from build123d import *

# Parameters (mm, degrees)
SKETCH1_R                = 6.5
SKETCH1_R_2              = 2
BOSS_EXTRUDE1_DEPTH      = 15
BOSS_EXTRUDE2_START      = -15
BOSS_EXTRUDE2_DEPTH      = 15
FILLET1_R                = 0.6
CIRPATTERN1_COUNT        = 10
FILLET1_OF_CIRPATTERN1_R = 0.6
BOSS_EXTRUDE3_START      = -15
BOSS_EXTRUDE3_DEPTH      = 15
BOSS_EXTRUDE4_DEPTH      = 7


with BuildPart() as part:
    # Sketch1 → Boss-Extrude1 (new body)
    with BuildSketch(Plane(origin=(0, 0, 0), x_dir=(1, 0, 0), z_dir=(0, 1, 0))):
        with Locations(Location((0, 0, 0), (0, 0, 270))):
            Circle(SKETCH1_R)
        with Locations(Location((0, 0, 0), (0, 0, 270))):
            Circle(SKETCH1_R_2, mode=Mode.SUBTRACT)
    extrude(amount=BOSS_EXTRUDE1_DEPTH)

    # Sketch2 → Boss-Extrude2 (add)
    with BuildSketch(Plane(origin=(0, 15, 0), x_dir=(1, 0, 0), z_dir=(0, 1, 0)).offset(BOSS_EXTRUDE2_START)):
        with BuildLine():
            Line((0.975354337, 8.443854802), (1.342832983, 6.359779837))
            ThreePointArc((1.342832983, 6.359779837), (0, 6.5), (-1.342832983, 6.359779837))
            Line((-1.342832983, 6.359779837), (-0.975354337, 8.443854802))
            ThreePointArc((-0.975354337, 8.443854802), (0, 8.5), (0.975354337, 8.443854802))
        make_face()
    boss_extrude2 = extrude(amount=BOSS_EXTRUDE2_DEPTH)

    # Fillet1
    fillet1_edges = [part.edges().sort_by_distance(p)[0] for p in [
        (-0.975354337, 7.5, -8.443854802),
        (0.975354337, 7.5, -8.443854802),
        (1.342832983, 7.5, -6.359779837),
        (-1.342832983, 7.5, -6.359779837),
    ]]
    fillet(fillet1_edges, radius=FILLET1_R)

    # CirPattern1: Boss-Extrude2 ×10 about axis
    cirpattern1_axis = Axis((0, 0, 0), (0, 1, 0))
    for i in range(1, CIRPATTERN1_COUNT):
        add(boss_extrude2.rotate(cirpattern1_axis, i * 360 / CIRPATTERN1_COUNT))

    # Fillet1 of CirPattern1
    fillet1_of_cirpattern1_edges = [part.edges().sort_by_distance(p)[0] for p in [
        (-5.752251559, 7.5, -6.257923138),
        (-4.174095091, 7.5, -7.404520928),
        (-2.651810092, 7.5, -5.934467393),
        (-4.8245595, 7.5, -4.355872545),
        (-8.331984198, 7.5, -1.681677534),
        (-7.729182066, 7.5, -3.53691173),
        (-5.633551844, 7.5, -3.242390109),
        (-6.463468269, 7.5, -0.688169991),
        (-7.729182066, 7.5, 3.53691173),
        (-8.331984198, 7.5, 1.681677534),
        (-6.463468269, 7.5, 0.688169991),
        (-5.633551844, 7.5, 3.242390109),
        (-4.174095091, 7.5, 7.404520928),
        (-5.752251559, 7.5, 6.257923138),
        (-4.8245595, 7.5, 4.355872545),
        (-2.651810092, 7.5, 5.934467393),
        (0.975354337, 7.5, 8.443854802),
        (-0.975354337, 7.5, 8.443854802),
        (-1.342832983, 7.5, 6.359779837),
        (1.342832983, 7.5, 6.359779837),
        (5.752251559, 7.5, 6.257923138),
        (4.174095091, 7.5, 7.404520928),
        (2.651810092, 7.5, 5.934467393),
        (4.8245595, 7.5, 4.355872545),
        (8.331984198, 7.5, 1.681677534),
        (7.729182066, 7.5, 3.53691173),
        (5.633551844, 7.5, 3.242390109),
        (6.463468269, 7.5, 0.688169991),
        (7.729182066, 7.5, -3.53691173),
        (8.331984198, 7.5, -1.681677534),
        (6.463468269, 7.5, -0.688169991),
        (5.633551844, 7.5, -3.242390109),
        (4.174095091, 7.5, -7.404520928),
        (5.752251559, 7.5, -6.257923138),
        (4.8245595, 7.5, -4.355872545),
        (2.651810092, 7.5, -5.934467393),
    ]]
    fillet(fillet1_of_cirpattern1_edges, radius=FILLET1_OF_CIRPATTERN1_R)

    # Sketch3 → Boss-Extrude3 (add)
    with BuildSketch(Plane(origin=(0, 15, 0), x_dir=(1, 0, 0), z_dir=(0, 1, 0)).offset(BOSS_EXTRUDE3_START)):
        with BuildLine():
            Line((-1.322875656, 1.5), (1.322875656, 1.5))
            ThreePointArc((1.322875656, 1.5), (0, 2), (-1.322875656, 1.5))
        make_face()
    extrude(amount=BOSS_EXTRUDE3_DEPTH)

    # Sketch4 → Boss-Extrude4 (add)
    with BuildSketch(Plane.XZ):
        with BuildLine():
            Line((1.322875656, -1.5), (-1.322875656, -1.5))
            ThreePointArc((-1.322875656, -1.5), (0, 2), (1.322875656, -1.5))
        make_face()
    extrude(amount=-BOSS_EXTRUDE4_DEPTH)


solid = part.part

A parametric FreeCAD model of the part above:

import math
import FreeCAD as App
import Part
import Sketcher
Q = App.Units.Quantity


def edges_at(feature, points):
    """Names of the edges that pass closest to the given points."""
    edges = feature.Shape.Edges
    near = lambda p: min(range(len(edges)), key=lambda i: edges[i].distToShape(Part.Vertex(*p))[0])
    return sorted({f"Edge{near(p) + 1}" for p in points})

doc = App.newDocument("Part")
params = doc.addObject("Spreadsheet::Sheet", "Params")
for row, (alias, value) in enumerate([
    ("sketch1_diameter", "13 mm"),
    ("sketch1_diameter2", "4 mm"),
    ("pad1_length", "15 mm"),
    ("sketch2_radius", "8.5 mm"),
    ("sketch2_radius2", "6.5 mm"),
    ("pad2_length", "15 mm"),
    ("fillet_radius", "0.6 mm"),
    ("fillet2_radius", "0.6 mm"),
    ("sketch3_radius", "2 mm"),
    ("pad3_length", "15 mm"),
    ("sketch4_radius", "2 mm"),
    ("pad4_length", "7 mm"),
], start=1):
    params.set(f"A{row}", alias)
    params.set(f"B{row}", "=" + value)
    params.setAlias(f"B{row}", alias)

body = doc.addObject("PartDesign::Body", "Body")

sketch1 = body.newObject("Sketcher::SketchObject", "Sketch")
sketch1.AttachmentSupport = (doc.getObject("XZ_Plane"), [""])
sketch1.MapMode = "FlatFace"
sketch1.addGeometry([
    Part.Circle(App.Vector(0, 0, 0), App.Vector(0, 0, 1), 6.5),
    Part.Circle(App.Vector(0, 0, 0), App.Vector(0, 0, 1), 2),
], False)
sketch1.addConstraint([
    Sketcher.Constraint("Coincident", 0, 3, -1, 1),
    Sketcher.Constraint("Coincident", 1, 3, -1, 1),
    Sketcher.Constraint("Diameter", 0, Q("13 mm")),
    Sketcher.Constraint("Diameter", 1, Q("4 mm")),
])
sketch1.setExpression("Constraints[2]", "Params.sketch1_diameter")
sketch1.setExpression("Constraints[3]", "Params.sketch1_diameter2")
pad1 = body.newObject("PartDesign::Pad", "Pad")
pad1.Profile = sketch1
pad1.setExpression("Length", "Params.pad1_length")
pad1.Reversed = True

sketch2 = body.newObject("Sketcher::SketchObject", "Sketch001")
sketch2.AttachmentSupport = (doc.getObject("XZ_Plane"), [""])
sketch2.MapMode = "FlatFace"
sketch2.addGeometry([
    Part.LineSegment(App.Vector(1.3, -6.4, 0), App.Vector(1, -8.4, 0)),
    Part.ArcOfCircle(Part.Circle(App.Vector(0, 0, 0), App.Vector(0, 0, 1), 8.5), math.radians(-96.59), math.radians(-83.41)),
    Part.LineSegment(App.Vector(-1, -8.4, 0), App.Vector(-1.3, -6.4, 0)),
    Part.ArcOfCircle(Part.Circle(App.Vector(0, 0, 0), App.Vector(0, 0, 1), 6.5), math.radians(-102), math.radians(-78)),
], False)
sketch2.addConstraint([
    Sketcher.Constraint("Coincident", 0, 2, 1, 2),
    Sketcher.Constraint("Coincident", 1, 1, 2, 1),
    Sketcher.Constraint("Coincident", 2, 2, 3, 1),
    Sketcher.Constraint("Coincident", 3, 2, 0, 1),
    Sketcher.Constraint("Coincident", 1, 3, -1, 1),
    Sketcher.Constraint("Coincident", 3, 3, -1, 1),
    Sketcher.Constraint("Horizontal", 0, 2, 1, 1),
    Sketcher.Constraint("Horizontal", 2, 2, 3, 2),
    Sketcher.Constraint("Radius", 1, Q("8.5 mm")),
    Sketcher.Constraint("Radius", 3, Q("6.5 mm")),
    Sketcher.Constraint("Angle", 0, Q("-100 deg")),
    Sketcher.Constraint("DistanceY", 2, 2, -1, 1, Q("6.35978 mm")),
])
sketch2.setExpression("Constraints[8]", "Params.sketch2_radius")
sketch2.setExpression("Constraints[9]", "Params.sketch2_radius2")
pad2 = body.newObject("PartDesign::Pad", "Pad001")
pad2.Profile = sketch2
pad2.setExpression("Length", "Params.pad2_length")
pad2.Reversed = True
doc.recompute()

fillet = body.newObject("PartDesign::Fillet", "Fillet")
fillet.Base = (pad2, edges_at(pad2, [
    (-0.975, 7.5, -8.444),
    (0.975, 7.5, -8.444),
    (1.343, 7.5, -6.36),
    (-1.343, 7.5, -6.36),
]))
fillet.setExpression("Radius", "Params.fillet_radius")
doc.recompute()

polarpattern = body.newObject("PartDesign::PolarPattern", "PolarPattern")
polarpattern.Originals = [pad2]
polarpattern.Axis = (doc.getObject("Y_Axis"), [""])
polarpattern.Angle = 360
polarpattern.Occurrences = 10
body.Tip = polarpattern
doc.recompute()

fillet2 = body.newObject("PartDesign::Fillet", "Fillet001")
fillet2.Base = (polarpattern, edges_at(polarpattern, [
    (-5.752, 7.5, -6.258),
    (-4.174, 7.5, -7.405),
    (-2.652, 7.5, -5.934),
    (-4.825, 7.5, -4.356),
    (-8.332, 7.5, -1.682),
    (-7.729, 7.5, -3.537),
    (-5.634, 7.5, -3.242),
    (-6.463, 7.5, -0.688),
    (-7.729, 7.5, 3.537),
    (-8.332, 7.5, 1.682),
    (-6.463, 7.5, 0.688),
    (-5.634, 7.5, 3.242),
    (-4.174, 7.5, 7.405),
    (-5.752, 7.5, 6.258),
    (-4.825, 7.5, 4.356),
    (-2.652, 7.5, 5.934),
    (0.975, 7.5, 8.444),
    (-0.975, 7.5, 8.444),
    (-1.343, 7.5, 6.36),
    (1.343, 7.5, 6.36),
    (5.752, 7.5, 6.258),
    (4.174, 7.5, 7.405),
    (2.652, 7.5, 5.934),
    (4.825, 7.5, 4.356),
    (8.332, 7.5, 1.682),
    (7.729, 7.5, 3.537),
    (5.634, 7.5, 3.242),
    (6.463, 7.5, 0.688),
    (7.729, 7.5, -3.537),
    (8.332, 7.5, -1.682),
    (6.463, 7.5, -0.688),
    (5.634, 7.5, -3.242),
    (4.174, 7.5, -7.405),
    (5.752, 7.5, -6.258),
    (4.825, 7.5, -4.356),
    (2.652, 7.5, -5.934),
]))
fillet2.setExpression("Radius", "Params.fillet2_radius")

sketch3 = body.newObject("Sketcher::SketchObject", "Sketch002")
sketch3.AttachmentSupport = (doc.getObject("XZ_Plane"), [""])
sketch3.MapMode = "FlatFace"
sketch3.addGeometry([
    Part.LineSegment(App.Vector(-1.3, -1.5, 0), App.Vector(1.3, -1.5, 0)),
    Part.ArcOfCircle(Part.Circle(App.Vector(0, 0, 0), App.Vector(0, 0, 1), 2), math.radians(-131), math.radians(-49)),
], False)
sketch3.addConstraint([
    Sketcher.Constraint("Coincident", 0, 1, 1, 1),
    Sketcher.Constraint("Coincident", 1, 2, 0, 2),
    Sketcher.Constraint("Horizontal", 0),
    Sketcher.Constraint("Coincident", 1, 3, -1, 1),
    Sketcher.Constraint("Radius", 1, Q("2 mm")),
    Sketcher.Constraint("DistanceY", 0, 1, -1, 1, Q("1.5 mm")),
])
sketch3.setExpression("Constraints[4]", "Params.sketch3_radius")
pad3 = body.newObject("PartDesign::Pad", "Pad002")
pad3.Profile = sketch3
pad3.setExpression("Length", "Params.pad3_length")
pad3.Reversed = True

sketch4 = body.newObject("Sketcher::SketchObject", "Sketch003")
sketch4.AttachmentSupport = (doc.getObject("XZ_Plane"), [""])
sketch4.MapMode = "FlatFace"
sketch4.addGeometry([
    Part.LineSegment(App.Vector(-1.3, -1.5, 0), App.Vector(1.3, -1.5, 0)),
    Part.ArcOfCircle(Part.Circle(App.Vector(0, 0, 0), App.Vector(0, 0, 1), 2), math.radians(-49), math.radians(229)),
], False)
sketch4.addConstraint([
    Sketcher.Constraint("Coincident", 0, 1, 1, 2),
    Sketcher.Constraint("Coincident", 1, 1, 0, 2),
    Sketcher.Constraint("Horizontal", 0),
    Sketcher.Constraint("Coincident", 1, 3, -1, 1),
    Sketcher.Constraint("Radius", 1, Q("2 mm")),
    Sketcher.Constraint("DistanceY", 0, 1, -1, 1, Q("1.5 mm")),
])
sketch4.setExpression("Constraints[4]", "Params.sketch4_radius")
pad4 = body.newObject("PartDesign::Pad", "Pad003")
pad4.Profile = sketch4
pad4.setExpression("Length", "Params.pad4_length")
pad4.Reversed = True

doc.recompute()
